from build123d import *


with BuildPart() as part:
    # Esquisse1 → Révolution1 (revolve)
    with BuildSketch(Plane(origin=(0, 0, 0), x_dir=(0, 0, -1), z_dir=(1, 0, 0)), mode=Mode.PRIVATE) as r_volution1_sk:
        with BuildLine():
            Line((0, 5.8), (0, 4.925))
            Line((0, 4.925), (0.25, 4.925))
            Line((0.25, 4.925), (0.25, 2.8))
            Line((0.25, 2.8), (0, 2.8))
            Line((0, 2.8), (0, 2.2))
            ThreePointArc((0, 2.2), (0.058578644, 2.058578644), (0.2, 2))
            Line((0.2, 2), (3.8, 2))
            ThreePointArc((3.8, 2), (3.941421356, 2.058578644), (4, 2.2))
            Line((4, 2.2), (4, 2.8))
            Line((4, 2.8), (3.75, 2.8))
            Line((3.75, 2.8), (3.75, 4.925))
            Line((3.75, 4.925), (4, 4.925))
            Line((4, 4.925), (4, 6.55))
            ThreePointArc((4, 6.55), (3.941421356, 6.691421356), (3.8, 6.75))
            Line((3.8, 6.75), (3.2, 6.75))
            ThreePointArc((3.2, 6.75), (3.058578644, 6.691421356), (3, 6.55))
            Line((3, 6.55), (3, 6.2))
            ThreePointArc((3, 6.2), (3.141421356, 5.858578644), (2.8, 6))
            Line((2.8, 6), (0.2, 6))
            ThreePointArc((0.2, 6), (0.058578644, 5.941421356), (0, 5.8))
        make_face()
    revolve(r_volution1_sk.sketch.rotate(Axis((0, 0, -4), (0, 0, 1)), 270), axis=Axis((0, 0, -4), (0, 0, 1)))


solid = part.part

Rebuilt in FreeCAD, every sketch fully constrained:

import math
import FreeCAD as App
import Part
import Sketcher

doc = App.newDocument("Part")
body = doc.addObject("PartDesign::Body", "Body")

sketch1 = doc.addObject("Sketcher::SketchObject", "Sketch")
body.addObject(sketch1)
sketch1.AttachmentSupport = (doc.YZ_Plane, [""])
sketch1.MapMode = "FlatFace"
sketch1.addGeometry([
    Part.LineSegment(App.Vector(5.8, 0, 0), App.Vector(4.92, 0, 0)),
    Part.LineSegment(App.Vector(4.92, 0, 0), App.Vector(4.92, -0.25, 0)),
    Part.LineSegment(App.Vector(4.92, -0.25, 0), App.Vector(2.8, -0.25, 0)),
    Part.LineSegment(App.Vector(2.8, -0.25, 0), App.Vector(2.8, 0, 0)),
    Part.LineSegment(App.Vector(2.8, 0, 0), App.Vector(2.2, 0, 0)),
    Part.ArcOfCircle(Part.Circle(App.Vector(2.2, -0.2, 0), App.Vector(0, 0, 1), 0.2), math.radians(90), math.radians(180)),
    Part.LineSegment(App.Vector(2, -0.2, 0), App.Vector(2, -3.8, 0)),
    Part.ArcOfCircle(Part.Circle(App.Vector(2.2, -3.8, 0), App.Vector(0, 0, 1), 0.2), math.radians(-180), math.radians(-90)),
    Part.LineSegment(App.Vector(2.2, -4, 0), App.Vector(2.8, -4, 0)),
    Part.LineSegment(App.Vector(2.8, -4, 0), App.Vector(2.8, -3.75, 0)),
    Part.LineSegment(App.Vector(2.8, -3.75, 0), App.Vector(4.92, -3.75, 0)),
    Part.LineSegment(App.Vector(4.92, -3.75, 0), App.Vector(4.92, -4, 0)),
    Part.LineSegment(App.Vector(4.92, -4, 0), App.Vector(6.55, -4, 0)),
    Part.ArcOfCircle(Part.Circle(App.Vector(6.55, -3.8, 0), App.Vector(0, 0, 1), 0.2), math.radians(-90), math.radians(0)),
    Part.LineSegment(App.Vector(6.75, -3.8, 0), App.Vector(6.75, -3.2, 0)),
    Part.ArcOfCircle(Part.Circle(App.Vector(6.55, -3.2, 0), App.Vector(0, 0, 1), 0.2), math.radians(0), math.radians(90)),
    Part.LineSegment(App.Vector(6.55, -3, 0), App.Vector(6.2, -3, 0)),
    Part.ArcOfCircle(Part.Circle(App.Vector(6, -3, 0), App.Vector(0, 0, 1), 0.2), math.radians(90), math.radians(360)),
    Part.LineSegment(App.Vector(6, -2.8, 0), App.Vector(6, -0.2, 0)),
    Part.ArcOfCircle(Part.Circle(App.Vector(5.8, -0.2, 0), App.Vector(0, 0, 1), 0.2), math.radians(0), math.radians(90)),
], False)
sketch1.addConstraint([
    Sketcher.Constraint("Coincident", 0, 2, 1, 1),
    Sketcher.Constraint("Coincident", 1, 2, 2, 1),
    Sketcher.Constraint("Coincident", 2, 2, 3, 1),
    Sketcher.Constraint("Coincident", 3, 2, 4, 1),
    Sketcher.Constraint("Tangent", 4, 2, 5, 1),
    Sketcher.Constraint("Tangent", 5, 2, 6, 1),
    Sketcher.Constraint("Tangent", 6, 2, 7, 1),
    Sketcher.Constraint("Tangent", 7, 2, 8, 1),
    Sketcher.Constraint("Coincident", 8, 2, 9, 1),
    Sketcher.Constraint("Coincident", 9, 2, 10, 1),
    Sketcher.Constraint("Coincident", 10, 2, 11, 1),
    Sketcher.Constraint("Coincident", 11, 2, 12, 1),
    Sketcher.Constraint("Tangent", 12, 2, 13, 1),
    Sketcher.Constraint("Tangent", 13, 2, 14, 1),
    Sketcher.Constraint("Tangent", 14, 2, 15, 1),
    Sketcher.Constraint("Tangent", 15, 2, 16, 1),
    Sketcher.Constraint("Coincident", 16, 2, 17, 2),
    Sketcher.Constraint("Coincident", 17, 1, 18, 1),
    Sketcher.Constraint("Tangent", 18, 2, 19, 1),
    Sketcher.Constraint("Tangent", 19, 2, 0, 1),
    Sketcher.Constraint("Horizontal", 0),
    Sketcher.Constraint("Vertical", 1),
    Sketcher.Constraint("Horizontal", 2),
    Sketcher.Constraint("Vertical", 3),
    Sketcher.Constraint("Horizontal", 4),
    Sketcher.Constraint("Vertical", 6),
    Sketcher.Constraint("Horizontal", 8),
    Sketcher.Constraint("Vertical", 9),
    Sketcher.Constraint("Horizontal", 10),
    Sketcher.Constraint("Vertical", 11),
    Sketcher.Constraint("Horizontal", 12),
    Sketcher.Constraint("Vertical", 14),
    Sketcher.Constraint("Horizontal", 16),
    Sketcher.Constraint("Vertical", 18),
    Sketcher.Constraint("Equal", 5, 7),
    Sketcher.Constraint("Equal", 7, 13),
    Sketcher.Constraint("Equal", 13, 15),
    Sketcher.Constraint("Equal", 15, 17),
    Sketcher.Constraint("Equal", 17, 19),
    Sketcher.Constraint("PointOnObject", 0, 2, -1),
    Sketcher.Constraint("PointOnObject", 3, 2, -1),
    Sketcher.Constraint("Horizontal", 7, 3, 13, 3),
    Sketcher.Constraint("Horizontal", 17, 3, 15, 2),
    Sketcher.Constraint("Vertical", 3, 2, 8, 2),
    Sketcher.Constraint("Vertical", 1, 2, 10, 2),
    Sketcher.Constraint("Equal", 3, 9),
    Sketcher.Constraint("Equal", 8, 14),
    Sketcher.Constraint("Radius", 5, 0.2),
    Sketcher.Constraint("DistanceX", 4, 2, 4, 1, 0.6),
    Sketcher.Constraint("DistanceY", 6, 2, 6, 1, 3.6),
    Sketcher.Constraint("DistanceX", -1, 1, 17, 3, 6.0),
    Sketcher.Constraint("DistanceX", -1, 1, 5, 2, 2.0),
    Sketcher.Constraint("DistanceX", -1, 1, 17, 1, 6.0),
    Sketcher.Constraint("DistanceX", 16, 2, 16, 1, 0.35),
    Sketcher.Constraint("DistanceY", 1, 2, 1, 1, 0.25),
    Sketcher.Constraint("DistanceX", 0, 2, 0, 1, 0.875),
])
revolution = doc.addObject("PartDesign::Revolution", "Revolution")
body.addObject(revolution)
revolution.Profile = sketch1
revolution.ReferenceAxis = (sketch1, ["V_Axis"])
revolution.Angle = 360

doc.recompute()
